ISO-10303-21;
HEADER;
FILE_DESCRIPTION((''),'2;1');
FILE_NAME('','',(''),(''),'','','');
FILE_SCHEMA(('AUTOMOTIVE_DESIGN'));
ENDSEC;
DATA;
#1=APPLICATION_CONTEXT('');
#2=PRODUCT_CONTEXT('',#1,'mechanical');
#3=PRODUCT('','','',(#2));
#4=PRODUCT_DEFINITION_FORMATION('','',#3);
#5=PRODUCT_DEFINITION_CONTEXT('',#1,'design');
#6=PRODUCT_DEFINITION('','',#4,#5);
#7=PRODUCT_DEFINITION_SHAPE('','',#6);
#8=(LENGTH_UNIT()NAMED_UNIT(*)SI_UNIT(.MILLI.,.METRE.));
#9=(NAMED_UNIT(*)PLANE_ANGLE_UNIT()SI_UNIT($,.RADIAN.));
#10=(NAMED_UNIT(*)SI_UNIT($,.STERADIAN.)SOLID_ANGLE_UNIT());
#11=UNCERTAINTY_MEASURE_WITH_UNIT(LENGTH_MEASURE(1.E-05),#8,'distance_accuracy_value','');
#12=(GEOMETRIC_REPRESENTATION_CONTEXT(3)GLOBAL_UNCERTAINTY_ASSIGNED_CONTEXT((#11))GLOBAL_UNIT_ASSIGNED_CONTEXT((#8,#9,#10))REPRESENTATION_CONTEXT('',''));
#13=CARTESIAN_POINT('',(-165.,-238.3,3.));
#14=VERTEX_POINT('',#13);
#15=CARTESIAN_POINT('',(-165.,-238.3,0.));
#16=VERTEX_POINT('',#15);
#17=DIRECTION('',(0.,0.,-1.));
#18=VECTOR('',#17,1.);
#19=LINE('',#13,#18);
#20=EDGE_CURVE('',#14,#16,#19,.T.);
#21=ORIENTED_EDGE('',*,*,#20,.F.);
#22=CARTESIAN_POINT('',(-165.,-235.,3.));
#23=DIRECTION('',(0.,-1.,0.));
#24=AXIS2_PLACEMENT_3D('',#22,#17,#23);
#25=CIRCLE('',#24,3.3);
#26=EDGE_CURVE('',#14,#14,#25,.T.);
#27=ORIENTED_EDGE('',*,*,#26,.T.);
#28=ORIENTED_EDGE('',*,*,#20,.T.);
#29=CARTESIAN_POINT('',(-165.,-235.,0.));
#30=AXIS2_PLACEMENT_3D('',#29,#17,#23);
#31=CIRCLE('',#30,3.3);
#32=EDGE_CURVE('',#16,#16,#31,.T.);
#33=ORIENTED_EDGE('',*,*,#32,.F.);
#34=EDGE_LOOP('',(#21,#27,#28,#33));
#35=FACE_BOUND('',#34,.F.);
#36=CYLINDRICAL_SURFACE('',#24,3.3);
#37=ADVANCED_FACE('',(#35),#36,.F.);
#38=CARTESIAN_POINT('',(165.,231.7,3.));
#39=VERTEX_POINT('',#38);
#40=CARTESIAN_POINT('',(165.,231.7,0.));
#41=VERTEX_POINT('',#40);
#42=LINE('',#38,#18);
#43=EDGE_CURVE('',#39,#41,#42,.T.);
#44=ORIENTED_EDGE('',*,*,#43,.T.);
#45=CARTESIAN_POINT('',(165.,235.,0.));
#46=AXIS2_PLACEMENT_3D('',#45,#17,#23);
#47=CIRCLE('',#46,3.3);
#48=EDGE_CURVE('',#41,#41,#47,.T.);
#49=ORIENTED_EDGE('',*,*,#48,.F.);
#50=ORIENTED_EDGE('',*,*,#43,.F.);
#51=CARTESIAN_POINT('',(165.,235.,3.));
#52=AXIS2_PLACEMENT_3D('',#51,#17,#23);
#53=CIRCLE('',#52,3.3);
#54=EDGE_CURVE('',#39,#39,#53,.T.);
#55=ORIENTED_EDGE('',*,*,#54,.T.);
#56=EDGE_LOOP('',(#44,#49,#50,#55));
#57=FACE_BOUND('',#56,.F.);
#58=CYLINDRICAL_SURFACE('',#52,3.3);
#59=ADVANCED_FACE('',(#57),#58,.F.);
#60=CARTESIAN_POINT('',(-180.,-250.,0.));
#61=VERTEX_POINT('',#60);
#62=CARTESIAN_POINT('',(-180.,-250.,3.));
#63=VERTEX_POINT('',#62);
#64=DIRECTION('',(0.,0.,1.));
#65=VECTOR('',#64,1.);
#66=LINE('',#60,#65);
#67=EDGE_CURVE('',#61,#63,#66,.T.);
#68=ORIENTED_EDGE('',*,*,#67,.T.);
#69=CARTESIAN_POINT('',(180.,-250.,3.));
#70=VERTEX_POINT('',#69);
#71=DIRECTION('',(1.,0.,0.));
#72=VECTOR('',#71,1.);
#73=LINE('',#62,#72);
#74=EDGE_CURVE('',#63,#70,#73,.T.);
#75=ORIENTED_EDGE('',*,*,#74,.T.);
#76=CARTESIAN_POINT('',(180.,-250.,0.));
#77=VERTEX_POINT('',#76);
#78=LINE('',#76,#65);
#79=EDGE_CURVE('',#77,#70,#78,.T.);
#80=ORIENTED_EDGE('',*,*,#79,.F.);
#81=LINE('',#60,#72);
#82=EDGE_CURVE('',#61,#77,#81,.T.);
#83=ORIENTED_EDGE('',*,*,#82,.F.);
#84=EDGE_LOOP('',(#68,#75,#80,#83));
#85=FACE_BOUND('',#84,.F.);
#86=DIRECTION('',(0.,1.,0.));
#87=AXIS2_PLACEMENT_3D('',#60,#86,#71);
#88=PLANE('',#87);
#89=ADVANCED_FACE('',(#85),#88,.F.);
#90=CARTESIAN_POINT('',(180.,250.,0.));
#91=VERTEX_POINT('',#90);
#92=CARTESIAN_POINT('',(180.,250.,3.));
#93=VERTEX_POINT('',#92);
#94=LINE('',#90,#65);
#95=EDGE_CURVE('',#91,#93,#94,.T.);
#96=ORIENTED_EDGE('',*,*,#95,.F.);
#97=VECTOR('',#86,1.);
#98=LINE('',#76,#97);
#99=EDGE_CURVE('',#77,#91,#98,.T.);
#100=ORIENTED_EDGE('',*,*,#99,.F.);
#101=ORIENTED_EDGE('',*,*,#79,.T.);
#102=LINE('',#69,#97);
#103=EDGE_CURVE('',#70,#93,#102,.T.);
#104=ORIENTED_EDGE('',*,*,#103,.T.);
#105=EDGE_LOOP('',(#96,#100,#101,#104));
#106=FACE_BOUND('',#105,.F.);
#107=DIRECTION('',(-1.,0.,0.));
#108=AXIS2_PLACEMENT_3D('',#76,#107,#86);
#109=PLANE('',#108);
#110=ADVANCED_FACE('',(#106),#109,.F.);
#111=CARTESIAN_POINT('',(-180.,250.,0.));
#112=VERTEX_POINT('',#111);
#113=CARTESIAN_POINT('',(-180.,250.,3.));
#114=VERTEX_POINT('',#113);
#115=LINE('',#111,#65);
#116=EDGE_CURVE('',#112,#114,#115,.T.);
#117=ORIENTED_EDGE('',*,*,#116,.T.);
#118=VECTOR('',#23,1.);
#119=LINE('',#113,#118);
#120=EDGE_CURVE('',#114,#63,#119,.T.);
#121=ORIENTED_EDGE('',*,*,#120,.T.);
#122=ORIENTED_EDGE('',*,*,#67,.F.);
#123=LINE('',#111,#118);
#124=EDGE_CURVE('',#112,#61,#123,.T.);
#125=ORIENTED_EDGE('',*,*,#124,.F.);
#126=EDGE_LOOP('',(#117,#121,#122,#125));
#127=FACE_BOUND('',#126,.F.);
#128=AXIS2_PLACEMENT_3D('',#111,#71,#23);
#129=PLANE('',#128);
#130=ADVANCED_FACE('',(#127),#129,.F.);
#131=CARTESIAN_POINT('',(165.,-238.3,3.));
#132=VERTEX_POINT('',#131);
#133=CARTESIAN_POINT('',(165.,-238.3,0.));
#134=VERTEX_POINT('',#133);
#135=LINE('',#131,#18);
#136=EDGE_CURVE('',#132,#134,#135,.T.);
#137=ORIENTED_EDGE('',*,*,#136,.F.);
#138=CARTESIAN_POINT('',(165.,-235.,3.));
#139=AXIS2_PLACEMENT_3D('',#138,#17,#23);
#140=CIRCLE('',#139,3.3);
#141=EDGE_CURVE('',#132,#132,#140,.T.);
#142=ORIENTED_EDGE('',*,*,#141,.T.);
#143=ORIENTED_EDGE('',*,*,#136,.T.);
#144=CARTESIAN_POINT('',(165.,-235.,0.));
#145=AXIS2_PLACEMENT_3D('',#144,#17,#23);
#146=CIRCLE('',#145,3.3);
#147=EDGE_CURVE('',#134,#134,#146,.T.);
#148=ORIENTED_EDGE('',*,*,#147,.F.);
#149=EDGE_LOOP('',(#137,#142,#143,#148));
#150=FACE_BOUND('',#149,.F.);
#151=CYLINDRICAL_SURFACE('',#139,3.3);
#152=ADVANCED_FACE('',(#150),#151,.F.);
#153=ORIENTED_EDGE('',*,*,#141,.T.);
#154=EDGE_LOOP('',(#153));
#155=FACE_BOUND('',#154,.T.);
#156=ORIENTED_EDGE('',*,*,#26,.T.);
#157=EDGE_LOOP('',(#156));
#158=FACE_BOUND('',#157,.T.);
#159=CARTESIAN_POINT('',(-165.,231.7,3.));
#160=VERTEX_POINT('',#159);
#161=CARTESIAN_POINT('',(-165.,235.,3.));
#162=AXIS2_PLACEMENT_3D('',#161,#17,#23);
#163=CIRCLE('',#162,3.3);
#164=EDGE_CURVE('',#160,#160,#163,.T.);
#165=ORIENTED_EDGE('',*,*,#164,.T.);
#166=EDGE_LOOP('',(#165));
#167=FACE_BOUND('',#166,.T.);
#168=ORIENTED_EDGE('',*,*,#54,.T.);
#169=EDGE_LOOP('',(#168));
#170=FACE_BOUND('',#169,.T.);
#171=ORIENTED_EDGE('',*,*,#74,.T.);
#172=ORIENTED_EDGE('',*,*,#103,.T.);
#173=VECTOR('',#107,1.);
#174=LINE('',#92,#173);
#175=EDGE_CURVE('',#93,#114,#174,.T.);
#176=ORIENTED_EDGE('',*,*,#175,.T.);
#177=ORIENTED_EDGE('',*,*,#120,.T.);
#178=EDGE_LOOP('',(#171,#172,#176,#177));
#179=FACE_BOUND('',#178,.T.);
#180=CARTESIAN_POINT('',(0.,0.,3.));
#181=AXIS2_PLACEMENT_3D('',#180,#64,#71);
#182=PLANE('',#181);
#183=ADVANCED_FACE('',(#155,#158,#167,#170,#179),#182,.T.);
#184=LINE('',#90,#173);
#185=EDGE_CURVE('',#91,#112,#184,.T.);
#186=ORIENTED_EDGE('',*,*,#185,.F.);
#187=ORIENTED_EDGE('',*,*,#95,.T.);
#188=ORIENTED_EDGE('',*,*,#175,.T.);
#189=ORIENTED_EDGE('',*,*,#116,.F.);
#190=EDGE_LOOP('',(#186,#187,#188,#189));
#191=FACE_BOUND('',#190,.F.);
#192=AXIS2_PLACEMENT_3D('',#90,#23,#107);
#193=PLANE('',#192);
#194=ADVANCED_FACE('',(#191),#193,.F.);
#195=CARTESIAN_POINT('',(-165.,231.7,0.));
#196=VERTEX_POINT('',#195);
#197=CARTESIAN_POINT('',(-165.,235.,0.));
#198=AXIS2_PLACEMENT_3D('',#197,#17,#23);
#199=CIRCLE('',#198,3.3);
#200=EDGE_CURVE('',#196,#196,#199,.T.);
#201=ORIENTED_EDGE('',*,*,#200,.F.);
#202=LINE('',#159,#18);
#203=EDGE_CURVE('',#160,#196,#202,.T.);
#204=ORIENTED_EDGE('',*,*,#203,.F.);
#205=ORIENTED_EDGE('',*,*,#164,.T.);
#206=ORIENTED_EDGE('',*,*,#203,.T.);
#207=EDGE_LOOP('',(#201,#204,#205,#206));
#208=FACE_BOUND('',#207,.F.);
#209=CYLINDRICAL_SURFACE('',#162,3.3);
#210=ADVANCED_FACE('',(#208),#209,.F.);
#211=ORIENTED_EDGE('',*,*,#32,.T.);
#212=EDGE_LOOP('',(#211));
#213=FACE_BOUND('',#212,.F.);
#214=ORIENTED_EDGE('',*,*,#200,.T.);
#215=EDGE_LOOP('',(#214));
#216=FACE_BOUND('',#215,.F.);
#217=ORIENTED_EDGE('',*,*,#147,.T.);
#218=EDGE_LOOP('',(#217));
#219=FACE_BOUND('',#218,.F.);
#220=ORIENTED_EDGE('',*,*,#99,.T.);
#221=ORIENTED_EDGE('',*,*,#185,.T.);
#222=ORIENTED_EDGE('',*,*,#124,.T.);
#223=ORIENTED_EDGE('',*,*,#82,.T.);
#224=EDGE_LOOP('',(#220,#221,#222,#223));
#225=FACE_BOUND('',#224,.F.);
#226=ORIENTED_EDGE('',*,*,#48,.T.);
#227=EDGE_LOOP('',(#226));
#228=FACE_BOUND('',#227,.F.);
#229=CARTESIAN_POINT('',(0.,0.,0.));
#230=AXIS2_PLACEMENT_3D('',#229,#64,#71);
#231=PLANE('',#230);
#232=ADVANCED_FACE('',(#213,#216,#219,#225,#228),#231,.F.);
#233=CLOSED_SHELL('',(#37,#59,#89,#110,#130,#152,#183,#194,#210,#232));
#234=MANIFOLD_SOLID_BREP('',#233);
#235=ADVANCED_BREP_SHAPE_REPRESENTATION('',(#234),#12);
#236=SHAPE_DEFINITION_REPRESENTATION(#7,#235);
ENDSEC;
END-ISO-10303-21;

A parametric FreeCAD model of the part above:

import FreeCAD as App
import Part
import Sketcher
from FreeCAD import Vector

doc = App.newDocument("Part")
body = doc.addObject("PartDesign::Body", "Body")

sketch1 = body.newObject("Sketcher::SketchObject", "Sketch")
sketch1.AttachmentSupport = (doc.getObject("XY_Plane"), [""])
sketch1.MapMode = "FlatFace"
sketch1.addGeometry([
    Part.LineSegment(Vector(180, -250, 0), Vector(180, 250, 0)),
    Part.LineSegment(Vector(180, 250, 0), Vector(-180, 250, 0)),
    Part.LineSegment(Vector(-180, 250, 0), Vector(-180, -250, 0)),
    Part.LineSegment(Vector(-180, -250, 0), Vector(180, -250, 0)),
], False)
sketch1.addConstraint([
    Sketcher.Constraint("Coincident", 0, 2, 1, 1),
    Sketcher.Constraint("Coincident", 1, 2, 2, 1),
    Sketcher.Constraint("Coincident", 2, 2, 3, 1),
    Sketcher.Constraint("Coincident", 3, 2, 0, 1),
    Sketcher.Constraint("Vertical", 0),
    Sketcher.Constraint("Horizontal", 1),
    Sketcher.Constraint("Vertical", 2),
    Sketcher.Constraint("Horizontal", 3),
    Sketcher.Constraint("Symmetric", 0, 2, 2, 2, -1, 1),
    Sketcher.Constraint("DistanceX", 1, 2, 1, 1, 360.0),
    Sketcher.Constraint("DistanceY", 0, 1, 0, 2, 500.0),
])
pad1 = body.newObject("PartDesign::Pad", "Pad")
pad1.Profile = sketch1
pad1.Length = 3

sketch2 = body.newObject("Sketcher::SketchObject", "Sketch001")
sketch2.AttachmentSupport = (doc.getObject("XY_Plane"), [""])
sketch2.MapMode = "FlatFace"
sketch2.AttachmentOffset = App.Placement(Vector(0, 0, 3), App.Rotation())
sketch2.addGeometry([
    Part.Circle(Vector(-165, 235, 0), Vector(0, 0, 1), 3.3),
    Part.Circle(Vector(165, 235, 0), Vector(0, 0, 1), 3.3),
    Part.Circle(Vector(165, -235, 0), Vector(0, 0, 1), 3.3),
    Part.Circle(Vector(-165, -235, 0), Vector(0, 0, 1), 3.3),
], False)
sketch2.addConstraint([
    Sketcher.Constraint("Equal", 0, 1),
    Sketcher.Constraint("Equal", 1, 2),
    Sketcher.Constraint("Equal", 2, 3),
    Sketcher.Constraint("Symmetric", 0, 3, 2, 3, -1, 1),
    Sketcher.Constraint("Symmetric", 1, 3, 3, 3, -1, 1),
    Sketcher.Constraint("Symmetric", 0, 3, 1, 3, -2),
    Sketcher.Constraint("Diameter", 0, 6.6),
    Sketcher.Constraint("DistanceX", 0, 3, -1, 1, 165.0),
    Sketcher.Constraint("DistanceY", -1, 1, 0, 3, 235.0),
])
doc.recompute()
hole = body.newObject("PartDesign::Hole", "Hole")
hole.Profile = sketch2
hole.ThreadType = "None"
hole.Diameter = 6.6
hole.DepthType = "ThroughAll"

doc.recompute()
